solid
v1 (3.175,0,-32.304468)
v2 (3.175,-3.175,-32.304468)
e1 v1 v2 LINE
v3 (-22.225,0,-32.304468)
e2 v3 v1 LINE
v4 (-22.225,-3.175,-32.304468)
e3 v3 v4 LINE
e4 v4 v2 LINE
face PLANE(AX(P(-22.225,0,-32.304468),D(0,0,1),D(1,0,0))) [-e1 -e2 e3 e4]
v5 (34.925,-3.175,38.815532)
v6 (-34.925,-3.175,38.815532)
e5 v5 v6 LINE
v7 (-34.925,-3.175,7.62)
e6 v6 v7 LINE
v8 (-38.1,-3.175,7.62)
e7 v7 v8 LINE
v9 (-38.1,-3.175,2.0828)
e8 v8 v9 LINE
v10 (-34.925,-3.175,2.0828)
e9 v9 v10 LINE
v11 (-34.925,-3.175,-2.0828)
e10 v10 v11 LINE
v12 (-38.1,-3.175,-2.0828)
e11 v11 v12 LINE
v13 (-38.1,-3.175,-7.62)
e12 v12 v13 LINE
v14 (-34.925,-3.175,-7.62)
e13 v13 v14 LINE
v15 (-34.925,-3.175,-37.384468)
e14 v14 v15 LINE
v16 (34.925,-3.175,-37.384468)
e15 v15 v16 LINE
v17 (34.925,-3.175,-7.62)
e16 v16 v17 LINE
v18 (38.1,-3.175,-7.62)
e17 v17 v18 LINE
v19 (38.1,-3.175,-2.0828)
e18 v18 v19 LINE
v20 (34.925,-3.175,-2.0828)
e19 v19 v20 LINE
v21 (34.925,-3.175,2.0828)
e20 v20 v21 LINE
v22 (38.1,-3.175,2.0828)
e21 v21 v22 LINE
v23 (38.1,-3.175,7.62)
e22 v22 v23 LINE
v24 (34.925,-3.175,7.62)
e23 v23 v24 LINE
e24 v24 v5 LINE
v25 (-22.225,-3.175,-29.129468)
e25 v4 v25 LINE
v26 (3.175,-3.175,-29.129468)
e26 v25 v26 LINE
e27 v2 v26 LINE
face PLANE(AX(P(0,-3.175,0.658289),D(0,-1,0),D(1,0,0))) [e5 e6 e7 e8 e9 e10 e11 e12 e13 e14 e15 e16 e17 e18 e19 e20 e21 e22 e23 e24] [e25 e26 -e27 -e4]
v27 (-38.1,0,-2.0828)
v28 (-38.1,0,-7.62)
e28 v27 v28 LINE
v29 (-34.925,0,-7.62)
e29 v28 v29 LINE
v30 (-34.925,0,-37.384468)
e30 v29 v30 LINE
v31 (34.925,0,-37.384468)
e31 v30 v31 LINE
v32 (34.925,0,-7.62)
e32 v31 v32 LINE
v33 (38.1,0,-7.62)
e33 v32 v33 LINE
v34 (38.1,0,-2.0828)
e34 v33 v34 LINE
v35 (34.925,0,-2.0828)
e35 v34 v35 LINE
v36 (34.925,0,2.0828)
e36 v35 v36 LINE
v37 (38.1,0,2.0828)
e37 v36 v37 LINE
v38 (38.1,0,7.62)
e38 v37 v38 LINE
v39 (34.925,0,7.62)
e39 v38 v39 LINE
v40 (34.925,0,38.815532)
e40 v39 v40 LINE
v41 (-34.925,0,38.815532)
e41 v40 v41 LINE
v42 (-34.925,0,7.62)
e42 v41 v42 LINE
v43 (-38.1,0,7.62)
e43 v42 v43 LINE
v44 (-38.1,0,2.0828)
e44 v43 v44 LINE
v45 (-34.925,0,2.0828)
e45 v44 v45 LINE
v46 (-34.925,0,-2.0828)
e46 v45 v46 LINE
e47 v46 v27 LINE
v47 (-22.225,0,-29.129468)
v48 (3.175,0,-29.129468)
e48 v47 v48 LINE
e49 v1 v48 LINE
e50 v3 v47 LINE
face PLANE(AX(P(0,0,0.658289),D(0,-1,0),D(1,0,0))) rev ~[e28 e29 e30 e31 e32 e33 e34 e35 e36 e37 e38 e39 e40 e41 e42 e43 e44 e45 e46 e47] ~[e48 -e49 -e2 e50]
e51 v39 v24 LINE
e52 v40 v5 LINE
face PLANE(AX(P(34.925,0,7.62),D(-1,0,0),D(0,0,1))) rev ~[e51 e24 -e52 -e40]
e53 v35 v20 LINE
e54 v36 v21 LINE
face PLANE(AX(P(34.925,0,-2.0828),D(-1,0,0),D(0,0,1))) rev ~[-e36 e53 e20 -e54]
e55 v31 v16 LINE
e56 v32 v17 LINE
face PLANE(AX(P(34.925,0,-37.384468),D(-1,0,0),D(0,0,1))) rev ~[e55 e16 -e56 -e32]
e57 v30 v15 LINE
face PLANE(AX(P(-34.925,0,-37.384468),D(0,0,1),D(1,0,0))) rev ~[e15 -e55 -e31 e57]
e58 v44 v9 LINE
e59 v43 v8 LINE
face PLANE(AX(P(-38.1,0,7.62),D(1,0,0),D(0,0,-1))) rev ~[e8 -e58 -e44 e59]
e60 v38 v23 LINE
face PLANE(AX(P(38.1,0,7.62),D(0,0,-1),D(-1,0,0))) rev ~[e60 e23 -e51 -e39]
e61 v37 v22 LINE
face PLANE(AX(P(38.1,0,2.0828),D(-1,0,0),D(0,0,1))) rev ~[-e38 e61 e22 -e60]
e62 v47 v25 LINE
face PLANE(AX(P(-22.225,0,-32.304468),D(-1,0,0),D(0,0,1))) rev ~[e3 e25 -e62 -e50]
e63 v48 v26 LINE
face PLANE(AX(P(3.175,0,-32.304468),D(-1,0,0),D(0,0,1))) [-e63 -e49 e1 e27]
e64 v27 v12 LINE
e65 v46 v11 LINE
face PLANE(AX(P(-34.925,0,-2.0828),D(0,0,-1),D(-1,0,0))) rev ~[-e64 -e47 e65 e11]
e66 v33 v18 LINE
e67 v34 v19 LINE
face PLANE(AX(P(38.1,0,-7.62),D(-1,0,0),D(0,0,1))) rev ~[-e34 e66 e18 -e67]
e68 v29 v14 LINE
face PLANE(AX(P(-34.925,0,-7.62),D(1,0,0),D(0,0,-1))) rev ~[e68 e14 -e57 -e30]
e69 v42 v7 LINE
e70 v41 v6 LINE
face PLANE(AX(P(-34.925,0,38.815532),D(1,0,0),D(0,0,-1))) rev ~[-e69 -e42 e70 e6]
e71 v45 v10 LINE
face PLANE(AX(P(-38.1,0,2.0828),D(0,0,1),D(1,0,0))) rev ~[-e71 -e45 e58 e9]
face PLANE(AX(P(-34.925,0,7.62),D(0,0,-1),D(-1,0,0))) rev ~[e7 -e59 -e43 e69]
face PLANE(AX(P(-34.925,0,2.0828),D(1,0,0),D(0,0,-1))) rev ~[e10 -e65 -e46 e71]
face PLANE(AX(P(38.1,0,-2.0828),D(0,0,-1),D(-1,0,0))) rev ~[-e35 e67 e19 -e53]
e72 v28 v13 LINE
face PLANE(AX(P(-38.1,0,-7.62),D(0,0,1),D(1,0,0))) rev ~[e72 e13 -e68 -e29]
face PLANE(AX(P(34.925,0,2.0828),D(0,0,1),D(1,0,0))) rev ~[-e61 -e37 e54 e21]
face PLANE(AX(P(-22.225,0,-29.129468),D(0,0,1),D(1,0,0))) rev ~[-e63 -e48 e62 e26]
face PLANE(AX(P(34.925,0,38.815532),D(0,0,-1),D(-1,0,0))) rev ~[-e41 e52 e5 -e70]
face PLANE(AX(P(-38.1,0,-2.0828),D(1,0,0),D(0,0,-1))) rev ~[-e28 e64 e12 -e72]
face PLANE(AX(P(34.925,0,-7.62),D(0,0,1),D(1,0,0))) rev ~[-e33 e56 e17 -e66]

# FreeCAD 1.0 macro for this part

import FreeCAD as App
import Part
import Sketcher
from FreeCAD import Vector
Q = App.Units.Quantity

doc = App.newDocument("Part")
body = doc.addObject("PartDesign::Body", "Body")

# Sketch on XZ plane
sketch1 = body.newObject("Sketcher::SketchObject", "Sketch")
sketch1.AttachmentSupport = (doc.getObject("XZ_Plane"), [""])
sketch1.MapMode = "FlatFace"
sketch1.addGeometry([
    Part.LineSegment(Vector(-34.925, -37.384468, 0), Vector(34.925, -37.384468, 0)),  # 0
    Part.LineSegment(Vector(34.925, -37.384468, 0), Vector(34.925, -7.62, 0)),  # 1
    Part.LineSegment(Vector(34.925, -7.62, 0), Vector(38.1, -7.62, 0)),  # 2
    Part.LineSegment(Vector(38.1, -7.62, 0), Vector(38.1, -2.0828, 0)),  # 3
    Part.LineSegment(Vector(38.1, -2.0828, 0), Vector(34.925, -2.0828, 0)),  # 4
    Part.LineSegment(Vector(34.925, -2.0828, 0), Vector(34.925, 2.0828, 0)),  # 5
    Part.LineSegment(Vector(34.925, 2.0828, 0), Vector(38.1, 2.0828, 0)),  # 6
    Part.LineSegment(Vector(38.1, 2.0828, 0), Vector(38.1, 7.62, 0)),  # 7
    Part.LineSegment(Vector(38.1, 7.62, 0), Vector(34.925, 7.62, 0)),  # 8
    Part.LineSegment(Vector(34.925, 7.62, 0), Vector(34.925, 38.815532, 0)),  # 9
    Part.LineSegment(Vector(34.925, 38.815532, 0), Vector(-34.925, 38.815532, 0)),  # 10
    Part.LineSegment(Vector(-34.925, 38.815532, 0), Vector(-34.925, 7.62, 0)),  # 11
    Part.LineSegment(Vector(-34.925, 7.62, 0), Vector(-38.1, 7.62, 0)),  # 12
    Part.LineSegment(Vector(-38.1, 7.62, 0), Vector(-38.1, 2.0828, 0)),  # 13
    Part.LineSegment(Vector(-38.1, 2.0828, 0), Vector(-34.925, 2.0828, 0)),  # 14
    Part.LineSegment(Vector(-34.925, 2.0828, 0), Vector(-34.925, -2.0828, 0)),  # 15
    Part.LineSegment(Vector(-34.925, -2.0828, 0), Vector(-38.1, -2.0828, 0)),  # 16
    Part.LineSegment(Vector(-38.1, -2.0828, 0), Vector(-38.1, -7.62, 0)),  # 17
    Part.LineSegment(Vector(-38.1, -7.62, 0), Vector(-34.925, -7.62, 0)),  # 18
    Part.LineSegment(Vector(-34.925, -7.62, 0), Vector(-34.925, -37.384468, 0)),  # 19
    Part.LineSegment(Vector(3.175, -32.304468, 0), Vector(-22.225, -32.304468, 0)),  # 20
    Part.LineSegment(Vector(-22.225, -32.304468, 0), Vector(-22.225, -29.129468, 0)),  # 21
    Part.LineSegment(Vector(-22.225, -29.129468, 0), Vector(3.175, -29.129468, 0)),  # 22
    Part.LineSegment(Vector(3.175, -29.129468, 0), Vector(3.175, -32.304468, 0)),  # 23
], False)
sketch1.addConstraint([
    Sketcher.Constraint("Coincident", 0, 2, 1, 1),
    Sketcher.Constraint("Coincident", 1, 2, 2, 1),
    Sketcher.Constraint("Coincident", 2, 2, 3, 1),
    Sketcher.Constraint("Coincident", 3, 2, 4, 1),
    Sketcher.Constraint("Coincident", 4, 2, 5, 1),
    Sketcher.Constraint("Coincident", 5, 2, 6, 1),
    Sketcher.Constraint("Coincident", 6, 2, 7, 1),
    Sketcher.Constraint("Coincident", 7, 2, 8, 1),
    Sketcher.Constraint("Coincident", 8, 2, 9, 1),
    Sketcher.Constraint("Coincident", 9, 2, 10, 1),
    Sketcher.Constraint("Coincident", 10, 2, 11, 1),
    Sketcher.Constraint("Coincident", 11, 2, 12, 1),
    Sketcher.Constraint("Coincident", 12, 2, 13, 1),
    Sketcher.Constraint("Coincident", 13, 2, 14, 1),
    Sketcher.Constraint("Coincident", 14, 2, 15, 1),
    Sketcher.Constraint("Coincident", 15, 2, 16, 1),
    Sketcher.Constraint("Coincident", 16, 2, 17, 1),
    Sketcher.Constraint("Coincident", 17, 2, 18, 1),
    Sketcher.Constraint("Coincident", 18, 2, 19, 1),
    Sketcher.Constraint("Coincident", 19, 2, 0, 1),
    Sketcher.Constraint("Coincident", 20, 2, 21, 1),
    Sketcher.Constraint("Coincident", 21, 2, 22, 1),
    Sketcher.Constraint("Coincident", 22, 2, 23, 1),
    Sketcher.Constraint("Coincident", 23, 2, 20, 1),
    Sketcher.Constraint("Horizontal", 0),
    Sketcher.Constraint("Vertical", 1),
    Sketcher.Constraint("Horizontal", 2),
    Sketcher.Constraint("Vertical", 3),
    Sketcher.Constraint("Horizontal", 4),
    Sketcher.Constraint("Vertical", 5),
    Sketcher.Constraint("Horizontal", 6),
    Sketcher.Constraint("Vertical", 7),
    Sketcher.Constraint("Horizontal", 8),
    Sketcher.Constraint("Vertical", 9),
    Sketcher.Constraint("Horizontal", 10),
    Sketcher.Constraint("Vertical", 11),
    Sketcher.Constraint("Horizontal", 12),
    Sketcher.Constraint("Vertical", 13),
    Sketcher.Constraint("Horizontal", 14),
    Sketcher.Constraint("Vertical", 15),
    Sketcher.Constraint("Horizontal", 16),
    Sketcher.Constraint("Vertical", 17),
    Sketcher.Constraint("Horizontal", 18),
    Sketcher.Constraint("Vertical", 19),
    Sketcher.Constraint("Horizontal", 20),
    Sketcher.Constraint("Vertical", 21),
    Sketcher.Constraint("Horizontal", 22),
    Sketcher.Constraint("Vertical", 23),
    Sketcher.Constraint("Symmetric", 1, 2, 11, 2, -1, 1),
    Sketcher.Constraint("Symmetric", 3, 2, 13, 2, -1, 1),
    Sketcher.Constraint("Symmetric", 5, 2, 15, 2, -1, 1),
    Sketcher.Constraint("Symmetric", 7, 2, 17, 2, -1, 1),
    Sketcher.Constraint("Symmetric", 8, 2, 11, 2, -2),
    Sketcher.Constraint("Symmetric", 6, 2, 13, 2, -2),
    Sketcher.Constraint("Vertical", 1, 2, 4, 2),
    Sketcher.Constraint("Vertical", 15, 2, 18, 2),
    Sketcher.Constraint("Equal", 18, 21),
    Sketcher.Constraint("DistanceX", 20, 2, 20, 1, Q("1 in")),
    Sketcher.Constraint("DistanceX", 0, 1, 0, 2, Q("2.75 in")),
    Sketcher.Constraint("DistanceY", 1, 2, -1, 1, Q("0.3 in")),
    Sketcher.Constraint("DistanceX", -1, 1, 2, 2, Q("1.5 in")),
    Sketcher.Constraint("DistanceX", 19, 2, 20, 2, Q("0.5 in")),
    Sketcher.Constraint("DistanceY", 19, 2, 20, 2, Q("0.2 in")),
    Sketcher.Constraint("DistanceY", 3, 1, 3, 2, Q("0.218 in")),
    Sketcher.Constraint("DistanceY", 9, 1, 9, 2, Q("31.195532 mm")),
    Sketcher.Constraint("DistanceY", 1, 1, 1, 2, Q("29.764468 mm")),
])
pad1 = body.newObject("PartDesign::Pad", "Pad")
pad1.Profile = sketch1
pad1.Length = Q("0.125 in")

doc.recompute()
